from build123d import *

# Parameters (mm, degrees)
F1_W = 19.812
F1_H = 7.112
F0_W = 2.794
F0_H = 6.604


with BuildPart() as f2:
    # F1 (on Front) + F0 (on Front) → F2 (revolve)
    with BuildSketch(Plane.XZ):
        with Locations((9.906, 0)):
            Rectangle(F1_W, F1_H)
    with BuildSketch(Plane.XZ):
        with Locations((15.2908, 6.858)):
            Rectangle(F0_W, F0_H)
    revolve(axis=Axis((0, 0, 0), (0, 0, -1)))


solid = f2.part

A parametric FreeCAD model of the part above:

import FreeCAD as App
import Part
import Sketcher
from FreeCAD import Vector
Q = App.Units.Quantity

doc = App.newDocument("Part")
body = doc.addObject("PartDesign::Body", "Body")

sketch1 = body.newObject("Sketcher::SketchObject", "Sketch")
sketch1.AttachmentSupport = (doc.getObject("XZ_Plane"), [""])
sketch1.MapMode = "FlatFace"
sketch1.addGeometry([
    Part.LineSegment(Vector(0, 3.6, 0), Vector(0, -3.6, 0)),
    Part.LineSegment(Vector(0, -3.6, 0), Vector(19.8, -3.6, 0)),
    Part.LineSegment(Vector(19.8, -3.6, 0), Vector(19.8, 3.6, 0)),
    Part.LineSegment(Vector(19.8, 3.6, 0), Vector(16.7, 3.6, 0)),
    Part.LineSegment(Vector(16.7, 3.6, 0), Vector(16.7, 10.2, 0)),
    Part.LineSegment(Vector(16.7, 10.2, 0), Vector(13.9, 10.2, 0)),
    Part.LineSegment(Vector(13.9, 10.2, 0), Vector(13.9, 3.6, 0)),
    Part.LineSegment(Vector(13.9, 3.6, 0), Vector(0, 3.6, 0)),
], False)
sketch1.addConstraint([
    Sketcher.Constraint("Coincident", 0, 2, 1, 1),
    Sketcher.Constraint("Coincident", 1, 2, 2, 1),
    Sketcher.Constraint("Coincident", 2, 2, 3, 1),
    Sketcher.Constraint("Coincident", 3, 2, 4, 1),
    Sketcher.Constraint("Coincident", 4, 2, 5, 1),
    Sketcher.Constraint("Coincident", 5, 2, 6, 1),
    Sketcher.Constraint("Coincident", 6, 2, 7, 1),
    Sketcher.Constraint("Coincident", 7, 2, 0, 1),
    Sketcher.Constraint("Vertical", 0),
    Sketcher.Constraint("Horizontal", 1),
    Sketcher.Constraint("Vertical", 2),
    Sketcher.Constraint("Horizontal", 3),
    Sketcher.Constraint("Vertical", 4),
    Sketcher.Constraint("Horizontal", 5),
    Sketcher.Constraint("Vertical", 6),
    Sketcher.Constraint("Horizontal", 7),
    Sketcher.Constraint("Symmetric", 0, 2, 7, 2, -1, 1),
    Sketcher.Constraint("Horizontal", 3, 2, 6, 2),
    Sketcher.Constraint("DistanceX", 1, 1, 1, 2, Q("0.78 in")),
    Sketcher.Constraint("DistanceX", 5, 2, 5, 1, Q("0.11 in")),
    Sketcher.Constraint("DistanceY", 0, 2, 0, 1, Q("0.28 in")),
    Sketcher.Constraint("DistanceY", 4, 1, 4, 2, Q("0.26 in")),
    Sketcher.Constraint("DistanceX", 3, 2, 3, 1, Q("0.123 in")),
])
revolution = body.newObject("PartDesign::Revolution", "Revolution")
revolution.Profile = sketch1
revolution.ReferenceAxis = (sketch1, ["V_Axis"])
revolution.Angle = 360

doc.recompute()
